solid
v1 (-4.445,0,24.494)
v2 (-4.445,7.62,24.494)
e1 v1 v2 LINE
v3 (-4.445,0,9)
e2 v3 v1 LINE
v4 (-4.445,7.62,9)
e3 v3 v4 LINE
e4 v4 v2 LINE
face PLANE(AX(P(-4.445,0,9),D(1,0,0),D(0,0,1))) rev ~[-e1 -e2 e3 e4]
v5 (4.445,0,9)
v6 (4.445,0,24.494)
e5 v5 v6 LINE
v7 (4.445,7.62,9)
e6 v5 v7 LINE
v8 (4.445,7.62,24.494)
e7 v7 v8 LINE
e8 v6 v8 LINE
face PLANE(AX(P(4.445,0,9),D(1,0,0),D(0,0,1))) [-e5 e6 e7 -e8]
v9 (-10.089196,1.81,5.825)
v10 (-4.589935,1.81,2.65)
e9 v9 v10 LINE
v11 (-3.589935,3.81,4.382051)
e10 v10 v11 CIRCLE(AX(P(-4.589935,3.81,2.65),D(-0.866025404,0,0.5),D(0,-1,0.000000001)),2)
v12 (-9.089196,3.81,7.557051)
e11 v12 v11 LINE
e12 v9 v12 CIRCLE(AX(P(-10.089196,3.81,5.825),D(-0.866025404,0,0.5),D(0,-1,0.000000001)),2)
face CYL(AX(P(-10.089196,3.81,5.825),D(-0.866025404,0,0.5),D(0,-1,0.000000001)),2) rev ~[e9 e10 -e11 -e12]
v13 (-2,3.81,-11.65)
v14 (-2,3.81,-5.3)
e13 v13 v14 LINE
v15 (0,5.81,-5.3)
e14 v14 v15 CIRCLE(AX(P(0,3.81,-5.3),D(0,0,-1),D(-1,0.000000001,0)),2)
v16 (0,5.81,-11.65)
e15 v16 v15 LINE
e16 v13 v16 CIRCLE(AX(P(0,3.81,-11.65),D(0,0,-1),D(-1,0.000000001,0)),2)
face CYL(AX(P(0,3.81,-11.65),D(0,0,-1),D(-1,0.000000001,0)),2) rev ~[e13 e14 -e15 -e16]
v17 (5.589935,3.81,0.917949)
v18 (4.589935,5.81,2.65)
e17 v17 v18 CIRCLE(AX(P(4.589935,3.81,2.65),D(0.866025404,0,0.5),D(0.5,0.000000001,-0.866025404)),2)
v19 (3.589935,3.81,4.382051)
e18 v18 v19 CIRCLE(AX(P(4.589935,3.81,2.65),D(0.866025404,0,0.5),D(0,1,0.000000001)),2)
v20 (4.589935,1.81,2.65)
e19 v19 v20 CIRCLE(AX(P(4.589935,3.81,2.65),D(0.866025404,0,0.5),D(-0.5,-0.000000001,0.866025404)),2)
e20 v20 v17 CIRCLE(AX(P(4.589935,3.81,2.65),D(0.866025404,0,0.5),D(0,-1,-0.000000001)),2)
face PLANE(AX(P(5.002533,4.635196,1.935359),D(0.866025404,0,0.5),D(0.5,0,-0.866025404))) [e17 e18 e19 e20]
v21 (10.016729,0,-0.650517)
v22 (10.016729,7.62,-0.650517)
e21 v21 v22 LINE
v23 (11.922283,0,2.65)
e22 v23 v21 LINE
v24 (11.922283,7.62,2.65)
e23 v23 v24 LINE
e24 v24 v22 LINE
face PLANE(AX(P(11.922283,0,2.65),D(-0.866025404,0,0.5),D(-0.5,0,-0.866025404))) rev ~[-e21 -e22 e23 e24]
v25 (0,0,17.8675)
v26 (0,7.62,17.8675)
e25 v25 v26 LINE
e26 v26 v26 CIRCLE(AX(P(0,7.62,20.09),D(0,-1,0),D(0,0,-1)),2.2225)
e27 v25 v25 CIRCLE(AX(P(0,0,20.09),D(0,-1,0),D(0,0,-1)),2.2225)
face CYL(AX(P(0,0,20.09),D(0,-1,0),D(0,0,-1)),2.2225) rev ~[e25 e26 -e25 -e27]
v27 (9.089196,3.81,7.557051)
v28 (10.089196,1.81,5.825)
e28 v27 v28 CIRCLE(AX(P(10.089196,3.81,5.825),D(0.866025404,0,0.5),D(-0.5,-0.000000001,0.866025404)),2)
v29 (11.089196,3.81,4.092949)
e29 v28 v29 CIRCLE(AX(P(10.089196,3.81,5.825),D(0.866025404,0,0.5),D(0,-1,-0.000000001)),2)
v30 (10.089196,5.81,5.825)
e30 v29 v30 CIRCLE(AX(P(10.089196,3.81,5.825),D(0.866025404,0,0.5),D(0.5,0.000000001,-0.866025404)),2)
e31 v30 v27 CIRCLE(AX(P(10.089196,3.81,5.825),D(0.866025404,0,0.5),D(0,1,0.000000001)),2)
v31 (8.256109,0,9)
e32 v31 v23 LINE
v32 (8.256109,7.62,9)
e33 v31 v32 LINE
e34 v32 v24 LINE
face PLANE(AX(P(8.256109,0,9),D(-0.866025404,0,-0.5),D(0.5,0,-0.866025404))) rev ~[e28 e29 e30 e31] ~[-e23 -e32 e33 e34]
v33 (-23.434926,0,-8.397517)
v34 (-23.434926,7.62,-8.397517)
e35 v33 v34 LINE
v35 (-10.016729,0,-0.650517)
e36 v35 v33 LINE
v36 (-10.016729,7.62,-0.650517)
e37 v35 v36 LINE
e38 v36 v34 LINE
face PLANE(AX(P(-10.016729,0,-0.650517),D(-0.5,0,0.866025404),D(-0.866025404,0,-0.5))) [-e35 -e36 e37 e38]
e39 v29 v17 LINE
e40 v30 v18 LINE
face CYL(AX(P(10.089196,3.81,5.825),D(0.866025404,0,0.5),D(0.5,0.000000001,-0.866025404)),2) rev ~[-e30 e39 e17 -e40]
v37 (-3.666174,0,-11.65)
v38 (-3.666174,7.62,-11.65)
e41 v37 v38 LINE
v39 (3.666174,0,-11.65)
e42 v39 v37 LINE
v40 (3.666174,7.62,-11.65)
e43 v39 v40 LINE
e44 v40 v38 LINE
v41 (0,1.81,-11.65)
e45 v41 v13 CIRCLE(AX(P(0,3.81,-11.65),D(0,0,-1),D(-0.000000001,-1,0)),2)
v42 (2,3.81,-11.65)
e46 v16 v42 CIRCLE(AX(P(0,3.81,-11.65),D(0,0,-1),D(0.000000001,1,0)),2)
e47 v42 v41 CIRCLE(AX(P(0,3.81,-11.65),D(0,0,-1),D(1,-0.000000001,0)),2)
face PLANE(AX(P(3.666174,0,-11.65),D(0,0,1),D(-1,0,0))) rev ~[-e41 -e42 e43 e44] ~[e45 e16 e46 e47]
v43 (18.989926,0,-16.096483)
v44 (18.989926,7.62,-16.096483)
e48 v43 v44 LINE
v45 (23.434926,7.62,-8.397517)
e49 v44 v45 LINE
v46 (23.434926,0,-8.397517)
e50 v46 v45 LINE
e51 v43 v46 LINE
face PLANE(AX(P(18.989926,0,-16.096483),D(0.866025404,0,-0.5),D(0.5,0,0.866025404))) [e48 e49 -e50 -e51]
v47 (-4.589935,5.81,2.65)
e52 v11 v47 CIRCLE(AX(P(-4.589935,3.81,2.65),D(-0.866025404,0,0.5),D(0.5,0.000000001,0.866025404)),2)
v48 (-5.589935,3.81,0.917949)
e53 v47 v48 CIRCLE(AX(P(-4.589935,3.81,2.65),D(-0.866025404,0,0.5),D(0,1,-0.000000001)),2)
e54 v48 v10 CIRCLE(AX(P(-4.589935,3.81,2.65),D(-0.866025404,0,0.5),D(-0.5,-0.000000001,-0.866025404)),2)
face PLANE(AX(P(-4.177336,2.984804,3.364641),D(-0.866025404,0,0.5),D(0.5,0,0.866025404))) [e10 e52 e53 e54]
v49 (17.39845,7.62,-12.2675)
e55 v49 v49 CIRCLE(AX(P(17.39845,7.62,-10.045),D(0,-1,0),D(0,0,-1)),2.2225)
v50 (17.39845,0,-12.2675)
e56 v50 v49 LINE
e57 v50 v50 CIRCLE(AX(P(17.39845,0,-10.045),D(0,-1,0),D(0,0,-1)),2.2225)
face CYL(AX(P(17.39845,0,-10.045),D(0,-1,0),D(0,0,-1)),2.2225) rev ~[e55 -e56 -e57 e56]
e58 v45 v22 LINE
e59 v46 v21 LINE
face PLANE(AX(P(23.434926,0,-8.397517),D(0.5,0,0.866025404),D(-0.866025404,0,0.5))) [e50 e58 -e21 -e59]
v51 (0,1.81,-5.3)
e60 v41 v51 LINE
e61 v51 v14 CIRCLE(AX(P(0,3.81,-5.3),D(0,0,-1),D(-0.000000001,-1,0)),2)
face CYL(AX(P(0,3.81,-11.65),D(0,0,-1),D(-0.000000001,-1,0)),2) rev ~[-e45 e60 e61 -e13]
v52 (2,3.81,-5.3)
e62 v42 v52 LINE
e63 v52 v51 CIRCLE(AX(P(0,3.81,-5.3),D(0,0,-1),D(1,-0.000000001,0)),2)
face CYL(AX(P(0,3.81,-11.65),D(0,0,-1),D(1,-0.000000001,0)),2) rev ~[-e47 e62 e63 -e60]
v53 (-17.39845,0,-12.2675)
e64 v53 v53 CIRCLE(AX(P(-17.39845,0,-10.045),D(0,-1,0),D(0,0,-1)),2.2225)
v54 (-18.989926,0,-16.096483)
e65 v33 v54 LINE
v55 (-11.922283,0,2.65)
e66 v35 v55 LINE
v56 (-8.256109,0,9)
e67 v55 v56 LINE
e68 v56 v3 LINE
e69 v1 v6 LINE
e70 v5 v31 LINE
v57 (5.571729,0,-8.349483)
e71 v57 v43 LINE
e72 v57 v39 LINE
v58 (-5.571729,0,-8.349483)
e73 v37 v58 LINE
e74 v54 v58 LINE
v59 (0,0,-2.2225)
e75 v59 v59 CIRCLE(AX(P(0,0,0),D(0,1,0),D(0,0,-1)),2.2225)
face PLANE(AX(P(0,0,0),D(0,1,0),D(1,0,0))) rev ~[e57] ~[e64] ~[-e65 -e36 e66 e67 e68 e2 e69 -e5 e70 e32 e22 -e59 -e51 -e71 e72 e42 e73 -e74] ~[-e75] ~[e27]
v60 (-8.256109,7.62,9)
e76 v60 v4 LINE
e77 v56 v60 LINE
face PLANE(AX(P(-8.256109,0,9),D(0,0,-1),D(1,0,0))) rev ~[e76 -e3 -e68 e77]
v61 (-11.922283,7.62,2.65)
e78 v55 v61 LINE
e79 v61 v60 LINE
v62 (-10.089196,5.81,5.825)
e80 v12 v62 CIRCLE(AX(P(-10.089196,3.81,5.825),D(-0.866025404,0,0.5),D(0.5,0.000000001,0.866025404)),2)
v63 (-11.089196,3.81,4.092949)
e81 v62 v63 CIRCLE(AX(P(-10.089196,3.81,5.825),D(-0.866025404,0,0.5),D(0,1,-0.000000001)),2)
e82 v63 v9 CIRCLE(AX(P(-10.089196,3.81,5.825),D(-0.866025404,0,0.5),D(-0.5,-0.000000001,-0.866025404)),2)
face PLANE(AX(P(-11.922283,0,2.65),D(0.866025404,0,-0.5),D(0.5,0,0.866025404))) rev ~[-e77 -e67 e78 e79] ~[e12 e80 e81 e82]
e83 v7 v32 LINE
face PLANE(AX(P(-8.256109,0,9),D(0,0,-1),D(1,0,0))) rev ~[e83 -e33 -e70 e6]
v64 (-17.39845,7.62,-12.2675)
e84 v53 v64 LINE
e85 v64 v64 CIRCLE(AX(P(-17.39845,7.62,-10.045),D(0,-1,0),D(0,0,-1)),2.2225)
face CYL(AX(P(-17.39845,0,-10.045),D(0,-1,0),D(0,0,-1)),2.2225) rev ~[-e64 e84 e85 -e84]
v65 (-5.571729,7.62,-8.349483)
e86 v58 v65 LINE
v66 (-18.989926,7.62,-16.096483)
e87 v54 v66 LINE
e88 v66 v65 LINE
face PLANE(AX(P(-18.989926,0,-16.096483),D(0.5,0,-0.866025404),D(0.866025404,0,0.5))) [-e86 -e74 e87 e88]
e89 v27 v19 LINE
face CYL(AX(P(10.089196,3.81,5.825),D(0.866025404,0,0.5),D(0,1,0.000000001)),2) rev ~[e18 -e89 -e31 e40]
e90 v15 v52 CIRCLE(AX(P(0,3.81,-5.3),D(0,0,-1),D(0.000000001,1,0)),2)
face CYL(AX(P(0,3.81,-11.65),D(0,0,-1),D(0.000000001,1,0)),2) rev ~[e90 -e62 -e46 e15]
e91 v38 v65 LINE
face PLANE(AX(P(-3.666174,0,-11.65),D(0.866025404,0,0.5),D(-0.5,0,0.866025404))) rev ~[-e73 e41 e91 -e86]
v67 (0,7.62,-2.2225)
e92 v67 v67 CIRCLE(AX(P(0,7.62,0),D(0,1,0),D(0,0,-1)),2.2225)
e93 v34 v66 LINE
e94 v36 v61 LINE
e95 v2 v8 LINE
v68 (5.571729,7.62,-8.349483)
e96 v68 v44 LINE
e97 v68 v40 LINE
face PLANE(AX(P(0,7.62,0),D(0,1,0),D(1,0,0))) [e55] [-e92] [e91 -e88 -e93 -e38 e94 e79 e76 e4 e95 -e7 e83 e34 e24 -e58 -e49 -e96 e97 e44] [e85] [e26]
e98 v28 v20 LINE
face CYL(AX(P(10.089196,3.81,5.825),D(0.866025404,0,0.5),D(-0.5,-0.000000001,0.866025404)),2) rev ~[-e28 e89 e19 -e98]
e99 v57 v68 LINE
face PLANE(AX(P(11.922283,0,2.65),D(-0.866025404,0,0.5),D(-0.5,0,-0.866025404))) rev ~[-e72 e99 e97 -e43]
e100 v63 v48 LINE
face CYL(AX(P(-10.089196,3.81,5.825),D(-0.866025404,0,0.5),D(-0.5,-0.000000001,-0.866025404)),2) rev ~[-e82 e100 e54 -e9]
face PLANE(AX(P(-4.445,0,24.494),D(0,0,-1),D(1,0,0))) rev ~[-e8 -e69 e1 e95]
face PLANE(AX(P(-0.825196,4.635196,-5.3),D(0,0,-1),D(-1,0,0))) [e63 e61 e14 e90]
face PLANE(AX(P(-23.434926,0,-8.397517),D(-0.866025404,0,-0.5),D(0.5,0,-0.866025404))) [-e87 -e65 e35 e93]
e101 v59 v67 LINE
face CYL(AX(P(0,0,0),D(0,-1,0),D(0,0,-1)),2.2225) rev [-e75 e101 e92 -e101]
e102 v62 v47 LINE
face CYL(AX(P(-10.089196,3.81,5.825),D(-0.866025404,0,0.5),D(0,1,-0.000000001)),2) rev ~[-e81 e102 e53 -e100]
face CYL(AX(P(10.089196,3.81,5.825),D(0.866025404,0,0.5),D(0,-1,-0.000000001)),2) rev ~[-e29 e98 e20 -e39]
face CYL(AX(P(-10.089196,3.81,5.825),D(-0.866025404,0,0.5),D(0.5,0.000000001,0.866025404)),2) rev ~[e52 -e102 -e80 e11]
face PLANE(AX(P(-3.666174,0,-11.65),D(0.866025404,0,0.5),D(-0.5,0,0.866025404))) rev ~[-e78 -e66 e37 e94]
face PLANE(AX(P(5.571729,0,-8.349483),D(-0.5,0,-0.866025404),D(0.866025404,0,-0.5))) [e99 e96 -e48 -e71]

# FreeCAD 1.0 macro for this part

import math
import FreeCAD as App
import Part
import Sketcher

V = App.Vector
Q = App.Units.Quantity

doc = App.newDocument("Part")
body = doc.addObject("PartDesign::Body", "Body")

sketch1 = body.newObject("Sketcher::SketchObject", "Sketch")
sketch1.AttachmentSupport = (doc.getObject("XZ_Plane"), [""])
sketch1.MapMode = "FlatFace"
sketch1.addGeometry([
    Part.LineSegment(V(3.7, -11.7, 0), V(-3.7, -11.7, 0)),
    Part.LineSegment(V(-3.7, -11.7, 0), V(-11.9, 2.6, 0)),
    Part.LineSegment(V(-11.9, 2.6, 0), V(-8.3, 9, 0)),
    Part.LineSegment(V(-8.3, 9, 0), V(8.3, 9, 0)),
    Part.LineSegment(V(8.3, 9, 0), V(11.9, 2.6, 0)),
    Part.LineSegment(V(11.9, 2.6, 0), V(3.7, -11.7, 0)),
    Part.Circle(V(0, 0, 0), V(0, 0, 1), 2.2),
], False)
sketch1.addConstraint([
    Sketcher.Constraint("Coincident", 0, 2, 1, 1),
    Sketcher.Constraint("Coincident", 1, 2, 2, 1),
    Sketcher.Constraint("Coincident", 2, 2, 3, 1),
    Sketcher.Constraint("Coincident", 3, 2, 4, 1),
    Sketcher.Constraint("Coincident", 4, 2, 5, 1),
    Sketcher.Constraint("Coincident", 5, 2, 0, 1),
    Sketcher.Constraint("Horizontal", 0),
    Sketcher.Constraint("Horizontal", 3),
    Sketcher.Constraint("Coincident", 6, 3, -1, 1),
    Sketcher.Constraint("Symmetric", 1, 2, 4, 2, -2),
    Sketcher.Constraint("Parallel", 1, 4),
    Sketcher.Constraint("Parallel", 2, 5),
    Sketcher.Constraint("Equal", 2, 4),
    Sketcher.Constraint("Diameter", 6, Q("0.175 in")),
    Sketcher.Constraint("Angle", 1, Q("120 deg")),
    Sketcher.Constraint("DistanceY", 1, 2, 2, 2, Q("0.25 in")),
    Sketcher.Constraint("DistanceX", 0, 2, 0, 1, 7.332348),
    Sketcher.Constraint("DistanceY", 0, 2, -1, 1, 11.65),
    Sketcher.Constraint("DistanceY", -1, 1, 1, 2, 2.65),
])
pad1 = body.newObject("PartDesign::Pad", "Pad")
pad1.Profile = sketch1
pad1.Length = Q("0.3 in")
pad1.Reversed = True

sketch2 = body.newObject("Sketcher::SketchObject", "Sketch001")
sketch2.Placement = App.Placement(V(-10.089196, 0, 5.825), App.Rotation(V(0.5, 0, 0.866025404), V(0, 1, 0), V(-0.866025404, 0, 0.5), "ZXY"))
sketch2.addGeometry([
    Part.ArcOfCircle(Part.Circle(V(0, 3.8, 0), V(0, 0, 1), 2), math.radians(0), math.radians(90)),
    Part.ArcOfCircle(Part.Circle(V(0, 3.8, 0), V(0, 0, 1), 2), math.radians(90), math.radians(180)),
    Part.ArcOfCircle(Part.Circle(V(0, 3.8, 0), V(0, 0, 1), 2), math.radians(-180), math.radians(-90)),
    Part.ArcOfCircle(Part.Circle(V(0, 3.8, 0), V(0, 0, 1), 2), math.radians(-90), math.radians(0)),
], False)
sketch2.addConstraint([
    Sketcher.Constraint("Tangent", 0, 2, 1, 1),
    Sketcher.Constraint("Tangent", 1, 2, 2, 1),
    Sketcher.Constraint("Tangent", 2, 2, 3, 1),
    Sketcher.Constraint("Tangent", 3, 2, 0, 1),
    Sketcher.Constraint("Equal", 0, 1),
    Sketcher.Constraint("Symmetric", 1, 2, 3, 2, -2),
    Sketcher.Constraint("PointOnObject", 0, 2, -2),
    Sketcher.Constraint("PointOnObject", 2, 2, -2),
    Sketcher.Constraint("Horizontal", 3, 3, 1, 2),
    Sketcher.Constraint("DistanceY", -1, 1, 0, 3, Q("0.15 in")),
    Sketcher.Constraint("Radius", 0, 2.0),
])
pocket1 = body.newObject("PartDesign::Pocket", "Pocket")
pocket1.Profile = sketch2
pocket1.Length = Q("0.25 in")

sketch3 = body.newObject("Sketcher::SketchObject", "Sketch002")
sketch3.Placement = App.Placement(V(10.089196, 0, 5.825), App.Rotation(V(0.5, 0, -0.866025404), V(0, 1, 0), V(0.866025404, 0, 0.5), "ZXY"))
sketch3.addGeometry([
    Part.ArcOfCircle(Part.Circle(V(0, 3.8, 0), V(0, 0, 1), 2), math.radians(90), math.radians(180)),
    Part.ArcOfCircle(Part.Circle(V(0, 3.8, 0), V(0, 0, 1), 2), math.radians(-180), math.radians(-90)),
    Part.ArcOfCircle(Part.Circle(V(0, 3.8, 0), V(0, 0, 1), 2), math.radians(-90), math.radians(0)),
    Part.ArcOfCircle(Part.Circle(V(0, 3.8, 0), V(0, 0, 1), 2), math.radians(0), math.radians(90)),
], False)
sketch3.addConstraint([
    Sketcher.Constraint("Tangent", 0, 2, 1, 1),
    Sketcher.Constraint("Tangent", 1, 2, 2, 1),
    Sketcher.Constraint("Tangent", 2, 2, 3, 1),
    Sketcher.Constraint("Tangent", 3, 2, 0, 1),
    Sketcher.Constraint("Equal", 0, 1),
    Sketcher.Constraint("Symmetric", 0, 2, 2, 2, -2),
    Sketcher.Constraint("PointOnObject", 1, 2, -2),
    Sketcher.Constraint("PointOnObject", 3, 2, -2),
    Sketcher.Constraint("Horizontal", 3, 3, 0, 2),
    Sketcher.Constraint("DistanceY", -1, 1, 0, 3, Q("0.15 in")),
    Sketcher.Constraint("Radius", 0, 2.0),
])
pocket2 = body.newObject("PartDesign::Pocket", "Pocket001")
pocket2.Profile = sketch3
pocket2.Length = Q("0.25 in")

sketch4 = body.newObject("Sketcher::SketchObject", "Sketch003")
sketch4.AttachmentSupport = (doc.getObject("XY_Plane"), [""])
sketch4.MapMode = "FlatFace"
sketch4.AttachmentOffset = App.Placement(V(0, 0, -11.65), App.Rotation())
sketch4.addGeometry([
    Part.ArcOfCircle(Part.Circle(V(0, 3.8, 0), V(0, 0, 1), 2), math.radians(0), math.radians(90)),
    Part.ArcOfCircle(Part.Circle(V(0, 3.8, 0), V(0, 0, 1), 2), math.radians(-90), math.radians(0)),
    Part.ArcOfCircle(Part.Circle(V(0, 3.8, 0), V(0, 0, 1), 2), math.radians(-180), math.radians(-90)),
    Part.ArcOfCircle(Part.Circle(V(0, 3.8, 0), V(0, 0, 1), 2), math.radians(90), math.radians(180)),
], False)
sketch4.addConstraint([
    Sketcher.Constraint("Tangent", 0, 1, 1, 2),
    Sketcher.Constraint("Tangent", 1, 1, 2, 2),
    Sketcher.Constraint("Tangent", 2, 1, 3, 2),
    Sketcher.Constraint("Tangent", 3, 1, 0, 2),
    Sketcher.Constraint("Equal", 0, 1),
    Sketcher.Constraint("Symmetric", 0, 1, 2, 1, -2),
    Sketcher.Constraint("PointOnObject", 1, 1, -2),
    Sketcher.Constraint("PointOnObject", 3, 1, -2),
    Sketcher.Constraint("Horizontal", 3, 3, 0, 1),
    Sketcher.Constraint("DistanceY", -1, 1, 0, 3, Q("0.15 in")),
    Sketcher.Constraint("Radius", 0, 2.0),
])
pocket3 = body.newObject("PartDesign::Pocket", "Pocket002")
pocket3.Profile = sketch4
pocket3.Length = Q("0.25 in")
pocket3.Reversed = True

sketch5 = body.newObject("Sketcher::SketchObject", "Sketch004")
sketch5.AttachmentSupport = (doc.getObject("XZ_Plane"), [""])
sketch5.MapMode = "FlatFace"
sketch5.addGeometry([
    Part.LineSegment(V(-4.4, 24.5, 0), V(-4.4, 9, 0)),
    Part.LineSegment(V(-4.4, 9, 0), V(4.4, 9, 0)),
    Part.LineSegment(V(4.4, 9, 0), V(4.4, 24.5, 0)),
    Part.LineSegment(V(4.4, 24.5, 0), V(-4.4, 24.5, 0)),
    Part.Circle(V(0, 20.1, 0), V(0, 0, 1), 2.2),
    Part.LineSegment(V(-5.6, -8.3, 0), V(-10, -0.7, 0)),
    Part.LineSegment(V(-10, -0.7, 0), V(-23.4, -8.4, 0)),
    Part.LineSegment(V(-23.4, -8.4, 0), V(-19, -16.1, 0)),
    Part.LineSegment(V(-19, -16.1, 0), V(-5.6, -8.3, 0)),
    Part.Circle(V(-17.4, -10, 0), V(0, 0, 1), 2.2),
    Part.LineSegment(V(10, -0.7, 0), V(5.6, -8.3, 0)),
    Part.LineSegment(V(5.6, -8.3, 0), V(19, -16.1, 0)),
    Part.LineSegment(V(19, -16.1, 0), V(23.4, -8.4, 0)),
    Part.LineSegment(V(23.4, -8.4, 0), V(10, -0.7, 0)),
    Part.Circle(V(17.4, -10, 0), V(0, 0, 1), 2.2),
], False)
sketch5.addConstraint([
    Sketcher.Constraint("Coincident", 0, 2, 1, 1),
    Sketcher.Constraint("Coincident", 1, 2, 2, 1),
    Sketcher.Constraint("Coincident", 2, 2, 3, 1),
    Sketcher.Constraint("Coincident", 3, 2, 0, 1),
    Sketcher.Constraint("Coincident", 5, 2, 6, 1),
    Sketcher.Constraint("Coincident", 6, 2, 7, 1),
    Sketcher.Constraint("Coincident", 7, 2, 8, 1),
    Sketcher.Constraint("Coincident", 8, 2, 5, 1),
    Sketcher.Constraint("Coincident", 10, 2, 11, 1),
    Sketcher.Constraint("Coincident", 11, 2, 12, 1),
    Sketcher.Constraint("Coincident", 12, 2, 13, 1),
    Sketcher.Constraint("Coincident", 13, 2, 10, 1),
    Sketcher.Constraint("Vertical", 0),
    Sketcher.Constraint("Horizontal", 1),
    Sketcher.Constraint("Vertical", 2),
    Sketcher.Constraint("Horizontal", 3),
    Sketcher.Constraint("Equal", 4, 9),
    Sketcher.Constraint("Equal", 9, 14),
    Sketcher.Constraint("Symmetric", 9, 3, 14, 3, -2),
    Sketcher.Constraint("Symmetric", 8, 2, 10, 2, -2),
    Sketcher.Constraint("Symmetric", 7, 2, 11, 2, -2),
    Sketcher.Constraint("Symmetric", 6, 2, 12, 2, -2),
    Sketcher.Constraint("Symmetric", 5, 2, 13, 2, -2),
    Sketcher.Constraint("PointOnObject", 4, 3, -2),
    Sketcher.Constraint("Perpendicular", 5, 6),
    Sketcher.Constraint("Perpendicular", 6, 7),
    Sketcher.Constraint("Perpendicular", 7, 8),
    Sketcher.Constraint("Diameter", 4, Q("0.175 in")),
    Sketcher.Constraint("Angle", 5, Q("120 deg")),
    Sketcher.Constraint("DistanceX", 1, 1, 1, 2, Q("0.35 in")),
    Sketcher.Constraint("DistanceY", 0, 2, 0, 1, Q("0.61 in")),
    Sketcher.Constraint("Distance", 5, Q("0.35 in")),
    Sketcher.Constraint("Distance", 6, Q("0.61 in")),
    Sketcher.Constraint("DistanceX", 0, 2, -1, 1, Q("0.175 in")),
    Sketcher.Constraint("DistanceY", -1, 1, 4, 3, 20.09),
    Sketcher.Constraint("DistanceY", 9, 3, -1, 1, 10.045),
    Sketcher.Constraint("DistanceY", -1, 1, 0, 2, 9.0),
    Sketcher.Constraint("DistanceX", 9, 3, 14, 3, 34.796901),
    Sketcher.Constraint("DistanceX", 5, 2, -1, 1, 10.016729),
    Sketcher.Constraint("DistanceY", 5, 2, -1, 1, 0.650517),
])
pad2 = body.newObject("PartDesign::Pad", "Pad001")
pad2.Profile = sketch5
pad2.Length = Q("0.3 in")
pad2.Reversed = True

doc.recompute()
